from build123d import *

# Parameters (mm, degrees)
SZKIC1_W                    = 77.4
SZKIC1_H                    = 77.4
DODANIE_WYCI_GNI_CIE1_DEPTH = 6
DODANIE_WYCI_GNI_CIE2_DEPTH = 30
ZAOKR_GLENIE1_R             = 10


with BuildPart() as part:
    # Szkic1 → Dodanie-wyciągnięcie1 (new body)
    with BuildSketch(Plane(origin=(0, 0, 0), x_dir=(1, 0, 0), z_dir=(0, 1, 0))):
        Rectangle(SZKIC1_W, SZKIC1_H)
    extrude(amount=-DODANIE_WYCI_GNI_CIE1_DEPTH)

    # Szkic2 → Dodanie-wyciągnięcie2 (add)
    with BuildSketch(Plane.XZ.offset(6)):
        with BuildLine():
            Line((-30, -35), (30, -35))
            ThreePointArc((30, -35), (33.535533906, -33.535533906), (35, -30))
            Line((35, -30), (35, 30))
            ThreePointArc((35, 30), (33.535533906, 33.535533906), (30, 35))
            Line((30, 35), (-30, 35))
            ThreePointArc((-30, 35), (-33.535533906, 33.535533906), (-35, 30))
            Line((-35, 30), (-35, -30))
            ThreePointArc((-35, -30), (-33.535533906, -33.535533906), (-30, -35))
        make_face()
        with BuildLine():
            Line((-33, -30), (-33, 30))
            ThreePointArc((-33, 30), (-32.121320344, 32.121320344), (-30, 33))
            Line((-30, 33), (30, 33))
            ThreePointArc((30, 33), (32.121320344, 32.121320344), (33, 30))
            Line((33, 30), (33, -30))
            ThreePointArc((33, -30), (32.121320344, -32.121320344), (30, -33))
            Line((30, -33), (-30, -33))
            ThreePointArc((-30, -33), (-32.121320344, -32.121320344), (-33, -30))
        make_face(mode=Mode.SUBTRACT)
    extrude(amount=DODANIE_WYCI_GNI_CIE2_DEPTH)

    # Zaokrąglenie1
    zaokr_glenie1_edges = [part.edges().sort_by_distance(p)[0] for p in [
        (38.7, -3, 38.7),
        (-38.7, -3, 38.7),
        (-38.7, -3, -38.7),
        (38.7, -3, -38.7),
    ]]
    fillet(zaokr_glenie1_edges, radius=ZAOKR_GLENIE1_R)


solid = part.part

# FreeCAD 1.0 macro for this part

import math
import FreeCAD as App
import Part
import Sketcher
Q = App.Units.Quantity


def edges_at(feature, points):
    """Names of the edges that pass closest to the given points."""
    edges = feature.Shape.Edges
    near = lambda p: min(range(len(edges)), key=lambda i: edges[i].distToShape(Part.Vertex(*p))[0])
    return sorted({f"Edge{near(p) + 1}" for p in points})

doc = App.newDocument("Part")
body = doc.addObject("PartDesign::Body", "Body")

sketch1 = body.newObject("Sketcher::SketchObject", "Sketch")
sketch1.AttachmentSupport = (doc.getObject("XZ_Plane"), [""])
sketch1.MapMode = "FlatFace"
sketch1.addGeometry([
    Part.LineSegment(App.Vector(-39, -39, 0), App.Vector(-39, 39, 0)),
    Part.LineSegment(App.Vector(-39, 39, 0), App.Vector(39, 39, 0)),
    Part.LineSegment(App.Vector(39, 39, 0), App.Vector(39, -39, 0)),
    Part.LineSegment(App.Vector(39, -39, 0), App.Vector(-39, -39, 0)),
], False)
sketch1.addConstraint([
    Sketcher.Constraint("Coincident", 0, 2, 1, 1),
    Sketcher.Constraint("Coincident", 1, 2, 2, 1),
    Sketcher.Constraint("Coincident", 2, 2, 3, 1),
    Sketcher.Constraint("Coincident", 3, 2, 0, 1),
    Sketcher.Constraint("Vertical", 0),
    Sketcher.Constraint("Horizontal", 1),
    Sketcher.Constraint("Vertical", 2),
    Sketcher.Constraint("Horizontal", 3),
    Sketcher.Constraint("Symmetric", 0, 2, 2, 2, -1, 1),
    Sketcher.Constraint("Equal", 3, 0),
    Sketcher.Constraint("DistanceX", 1, 1, 1, 2, Q("77.4 mm")),
])
pad1 = body.newObject("PartDesign::Pad", "Pad")
pad1.Profile = sketch1
pad1.Length = 6

sketch2 = body.newObject("Sketcher::SketchObject", "Sketch001")
sketch2.AttachmentSupport = (doc.getObject("XZ_Plane"), [""])
sketch2.MapMode = "FlatFace"
sketch2.AttachmentOffset = App.Placement(App.Vector(0, 0, 6), App.Rotation())
sketch2.addGeometry([
    Part.LineSegment(App.Vector(-30, -35, 0), App.Vector(30, -35, 0)),
    Part.ArcOfCircle(Part.Circle(App.Vector(30, -30, 0), App.Vector(0, 0, 1), 5), math.radians(-90), math.radians(0)),
    Part.LineSegment(App.Vector(35, -30, 0), App.Vector(35, 30, 0)),
    Part.ArcOfCircle(Part.Circle(App.Vector(30, 30, 0), App.Vector(0, 0, 1), 5), math.radians(0), math.radians(90)),
    Part.LineSegment(App.Vector(30, 35, 0), App.Vector(-30, 35, 0)),
    Part.ArcOfCircle(Part.Circle(App.Vector(-30, 30, 0), App.Vector(0, 0, 1), 5), math.radians(90), math.radians(180)),
    Part.LineSegment(App.Vector(-35, 30, 0), App.Vector(-35, -30, 0)),
    Part.ArcOfCircle(Part.Circle(App.Vector(-30, -30, 0), App.Vector(0, 0, 1), 5), math.radians(180), math.radians(270)),
    Part.ArcOfCircle(Part.Circle(App.Vector(-30, -30, 0), App.Vector(0, 0, 1), 3), math.radians(180), math.radians(270)),
    Part.LineSegment(App.Vector(-33, -30, 0), App.Vector(-33, 30, 0)),
    Part.ArcOfCircle(Part.Circle(App.Vector(-30, 30, 0), App.Vector(0, 0, 1), 3), math.radians(90), math.radians(180)),
    Part.LineSegment(App.Vector(-30, 33, 0), App.Vector(30, 33, 0)),
    Part.ArcOfCircle(Part.Circle(App.Vector(30, 30, 0), App.Vector(0, 0, 1), 3), math.radians(0), math.radians(90)),
    Part.LineSegment(App.Vector(33, 30, 0), App.Vector(33, -30, 0)),
    Part.ArcOfCircle(Part.Circle(App.Vector(30, -30, 0), App.Vector(0, 0, 1), 3), math.radians(-90), math.radians(0)),
    Part.LineSegment(App.Vector(30, -33, 0), App.Vector(-30, -33, 0)),
], False)
sketch2.addConstraint([
    Sketcher.Constraint("Tangent", 0, 2, 1, 1),
    Sketcher.Constraint("Tangent", 1, 2, 2, 1),
    Sketcher.Constraint("Tangent", 2, 2, 3, 1),
    Sketcher.Constraint("Tangent", 3, 2, 4, 1),
    Sketcher.Constraint("Tangent", 4, 2, 5, 1),
    Sketcher.Constraint("Tangent", 5, 2, 6, 1),
    Sketcher.Constraint("Tangent", 6, 2, 7, 1),
    Sketcher.Constraint("Tangent", 7, 2, 0, 1),
    Sketcher.Constraint("Tangent", 8, 1, 9, 1),
    Sketcher.Constraint("Tangent", 9, 2, 10, 2),
    Sketcher.Constraint("Tangent", 10, 1, 11, 1),
    Sketcher.Constraint("Tangent", 11, 2, 12, 2),
    Sketcher.Constraint("Tangent", 12, 1, 13, 1),
    Sketcher.Constraint("Tangent", 13, 2, 14, 2),
    Sketcher.Constraint("Tangent", 14, 1, 15, 1),
    Sketcher.Constraint("Tangent", 15, 2, 8, 2),
    Sketcher.Constraint("Horizontal", 0),
    Sketcher.Constraint("Vertical", 2),
    Sketcher.Constraint("Horizontal", 4),
    Sketcher.Constraint("Vertical", 6),
    Sketcher.Constraint("Vertical", 9),
    Sketcher.Constraint("Horizontal", 11),
    Sketcher.Constraint("Vertical", 13),
    Sketcher.Constraint("Horizontal", 15),
    Sketcher.Constraint("Coincident", 8, 3, 7, 3),
    Sketcher.Constraint("Coincident", 10, 3, 5, 3),
    Sketcher.Constraint("Coincident", 12, 3, 3, 3),
    Sketcher.Constraint("Equal", 1, 3),
    Sketcher.Constraint("Equal", 3, 5),
    Sketcher.Constraint("Equal", 5, 7),
    Sketcher.Constraint("Equal", 12, 14),
    Sketcher.Constraint("Symmetric", 1, 3, 5, 3, -1, 1),
    Sketcher.Constraint("Equal", 15, 2),
    Sketcher.Constraint("Radius", 1, Q("5 mm")),
    Sketcher.Constraint("Radius", 8, Q("3 mm")),
    Sketcher.Constraint("DistanceX", 0, 1, 0, 2, Q("60 mm")),
])
pad2 = body.newObject("PartDesign::Pad", "Pad001")
pad2.Profile = sketch2
pad2.Length = 30
doc.recompute()

fillet = body.newObject("PartDesign::Fillet", "Fillet")
fillet.Base = (pad2, edges_at(pad2, [
    (38.7, -3, 38.7),
    (-38.7, -3, 38.7),
    (-38.7, -3, -38.7),
    (38.7, -3, -38.7),
]))
fillet.Radius = 10

doc.recompute()
